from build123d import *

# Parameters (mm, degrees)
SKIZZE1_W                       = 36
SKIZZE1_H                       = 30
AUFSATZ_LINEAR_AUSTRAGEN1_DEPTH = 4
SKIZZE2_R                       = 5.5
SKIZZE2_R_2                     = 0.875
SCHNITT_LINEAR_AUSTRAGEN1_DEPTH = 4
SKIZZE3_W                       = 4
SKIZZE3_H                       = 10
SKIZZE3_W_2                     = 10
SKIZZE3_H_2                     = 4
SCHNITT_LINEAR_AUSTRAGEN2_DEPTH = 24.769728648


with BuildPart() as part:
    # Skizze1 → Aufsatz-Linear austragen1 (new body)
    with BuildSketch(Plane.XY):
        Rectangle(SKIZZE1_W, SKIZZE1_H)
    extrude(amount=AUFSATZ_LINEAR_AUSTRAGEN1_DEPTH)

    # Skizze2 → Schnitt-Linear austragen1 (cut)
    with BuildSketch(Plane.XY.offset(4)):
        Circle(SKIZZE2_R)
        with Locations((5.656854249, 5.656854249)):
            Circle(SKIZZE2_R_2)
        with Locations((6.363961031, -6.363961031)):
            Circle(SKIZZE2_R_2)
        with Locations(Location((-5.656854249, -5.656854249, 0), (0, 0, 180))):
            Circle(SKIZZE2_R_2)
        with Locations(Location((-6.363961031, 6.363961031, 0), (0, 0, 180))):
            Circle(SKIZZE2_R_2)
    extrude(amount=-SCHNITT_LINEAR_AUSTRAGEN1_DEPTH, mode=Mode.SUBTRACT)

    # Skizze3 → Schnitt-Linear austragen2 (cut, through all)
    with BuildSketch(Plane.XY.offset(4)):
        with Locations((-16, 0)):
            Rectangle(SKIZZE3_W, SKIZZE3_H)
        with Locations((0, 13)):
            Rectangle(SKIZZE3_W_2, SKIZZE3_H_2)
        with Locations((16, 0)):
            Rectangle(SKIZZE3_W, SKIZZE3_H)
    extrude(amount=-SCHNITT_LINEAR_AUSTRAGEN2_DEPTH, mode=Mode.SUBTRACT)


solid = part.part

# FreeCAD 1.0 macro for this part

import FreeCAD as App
import Part
import Sketcher
from FreeCAD import Vector

doc = App.newDocument("Part")
body = doc.addObject("PartDesign::Body", "Body")

sketch1 = doc.addObject("Sketcher::SketchObject", "Sketch")
body.addObject(sketch1)
sketch1.AttachmentSupport = (doc.XY_Plane, [""])
sketch1.MapMode = "FlatFace"
sketch1.addGeometry([
    Part.LineSegment(Vector(-18, 15, 0), Vector(-18, -15, 0)),
    Part.LineSegment(Vector(-18, -15, 0), Vector(18, -15, 0)),
    Part.LineSegment(Vector(18, -15, 0), Vector(18, 15, 0)),
    Part.LineSegment(Vector(18, 15, 0), Vector(-18, 15, 0)),
], False)
sketch1.addConstraint([
    Sketcher.Constraint("Coincident", 0, 2, 1, 1),
    Sketcher.Constraint("Coincident", 1, 2, 2, 1),
    Sketcher.Constraint("Coincident", 2, 2, 3, 1),
    Sketcher.Constraint("Coincident", 3, 2, 0, 1),
    Sketcher.Constraint("Vertical", 0),
    Sketcher.Constraint("Horizontal", 1),
    Sketcher.Constraint("Vertical", 2),
    Sketcher.Constraint("Horizontal", 3),
    Sketcher.Constraint("Symmetric", 0, 2, 2, 2, -1, 1),
    Sketcher.Constraint("DistanceX", 1, 1, 1, 2, 36.0),
    Sketcher.Constraint("DistanceY", 0, 2, 0, 1, 30.0),
])
pad1 = doc.addObject("PartDesign::Pad", "Pad")
body.addObject(pad1)
pad1.Profile = sketch1
pad1.Length = 4

sketch2 = doc.addObject("Sketcher::SketchObject", "Sketch001")
body.addObject(sketch2)
sketch2.AttachmentSupport = (doc.XY_Plane, [""])
sketch2.MapMode = "FlatFace"
sketch2.AttachmentOffset = App.Placement(Vector(0, 0, 4), App.Rotation())
sketch2.addGeometry([
    Part.Circle(Vector(0, 0, 0), Vector(0, 0, 1), 5.5),
    Part.Circle(Vector(5.7, 5.7, 0), Vector(0, 0, 1), 0.9),
    Part.Circle(Vector(6.4, -6.4, 0), Vector(0, 0, 1), 0.9),
    Part.Circle(Vector(-5.7, -5.7, 0), Vector(0, 0, 1), 0.9),
    Part.Circle(Vector(-6.4, 6.4, 0), Vector(0, 0, 1), 0.9),
], False)
sketch2.addConstraint([
    Sketcher.Constraint("Coincident", 0, 3, -1, 1),
    Sketcher.Constraint("Equal", 1, 2),
    Sketcher.Constraint("Equal", 2, 3),
    Sketcher.Constraint("Equal", 3, 4),
    Sketcher.Constraint("Symmetric", 1, 3, 3, 3, -1, 1),
    Sketcher.Constraint("Symmetric", 2, 3, 4, 3, -1, 1),
    Sketcher.Constraint("Diameter", 0, 11.0),
    Sketcher.Constraint("Diameter", 1, 1.75),
    Sketcher.Constraint("DistanceX", -1, 1, 2, 3, 6.363961),
    Sketcher.Constraint("DistanceY", 2, 3, -1, 1, 6.363961),
    Sketcher.Constraint("DistanceX", 3, 3, 1, 3, 11.313708),
    Sketcher.Constraint("DistanceY", 3, 3, 1, 3, 11.313708),
])
pocket1 = doc.addObject("PartDesign::Pocket", "Pocket")
body.addObject(pocket1)
pocket1.Profile = sketch2
pocket1.Length = 4

sketch3 = doc.addObject("Sketcher::SketchObject", "Sketch002")
body.addObject(sketch3)
sketch3.AttachmentSupport = (doc.XY_Plane, [""])
sketch3.MapMode = "FlatFace"
sketch3.AttachmentOffset = App.Placement(Vector(0, 0, 4), App.Rotation())
sketch3.addGeometry([
    Part.LineSegment(Vector(-18, 5, 0), Vector(-18, -5, 0)),
    Part.LineSegment(Vector(-18, -5, 0), Vector(-14, -5, 0)),
    Part.LineSegment(Vector(-14, -5, 0), Vector(-14, 5, 0)),
    Part.LineSegment(Vector(-14, 5, 0), Vector(-18, 5, 0)),
    Part.LineSegment(Vector(-5, 15, 0), Vector(-5, 11, 0)),
    Part.LineSegment(Vector(-5, 11, 0), Vector(5, 11, 0)),
    Part.LineSegment(Vector(5, 11, 0), Vector(5, 15, 0)),
    Part.LineSegment(Vector(5, 15, 0), Vector(-5, 15, 0)),
    Part.LineSegment(Vector(14, 5, 0), Vector(14, -5, 0)),
    Part.LineSegment(Vector(14, -5, 0), Vector(18, -5, 0)),
    Part.LineSegment(Vector(18, -5, 0), Vector(18, 5, 0)),
    Part.LineSegment(Vector(18, 5, 0), Vector(14, 5, 0)),
], False)
sketch3.addConstraint([
    Sketcher.Constraint("Coincident", 0, 2, 1, 1),
    Sketcher.Constraint("Coincident", 1, 2, 2, 1),
    Sketcher.Constraint("Coincident", 2, 2, 3, 1),
    Sketcher.Constraint("Coincident", 3, 2, 0, 1),
    Sketcher.Constraint("Coincident", 4, 2, 5, 1),
    Sketcher.Constraint("Coincident", 5, 2, 6, 1),
    Sketcher.Constraint("Coincident", 6, 2, 7, 1),
    Sketcher.Constraint("Coincident", 7, 2, 4, 1),
    Sketcher.Constraint("Coincident", 8, 2, 9, 1),
    Sketcher.Constraint("Coincident", 9, 2, 10, 1),
    Sketcher.Constraint("Coincident", 10, 2, 11, 1),
    Sketcher.Constraint("Coincident", 11, 2, 8, 1),
    Sketcher.Constraint("Vertical", 0),
    Sketcher.Constraint("Horizontal", 1),
    Sketcher.Constraint("Vertical", 2),
    Sketcher.Constraint("Horizontal", 3),
    Sketcher.Constraint("Vertical", 4),
    Sketcher.Constraint("Horizontal", 5),
    Sketcher.Constraint("Vertical", 6),
    Sketcher.Constraint("Horizontal", 7),
    Sketcher.Constraint("Vertical", 8),
    Sketcher.Constraint("Horizontal", 9),
    Sketcher.Constraint("Vertical", 10),
    Sketcher.Constraint("Horizontal", 11),
    Sketcher.Constraint("Symmetric", 2, 2, 8, 2, -1, 1),
    Sketcher.Constraint("Symmetric", 0, 2, 10, 2, -1, 1),
    Sketcher.Constraint("Horizontal", 1, 2, 8, 2),
    Sketcher.Constraint("Equal", 7, 0),
    Sketcher.Constraint("Equal", 11, 4),
    Sketcher.Constraint("DistanceX", 1, 1, 1, 2, 4.0),
    Sketcher.Constraint("DistanceX", 5, 1, 5, 2, 10.0),
    Sketcher.Constraint("DistanceX", 0, 2, -1, 1, 18.0),
    Sketcher.Constraint("DistanceX", 4, 2, -1, 1, 5.0),
    Sketcher.Constraint("DistanceY", -1, 1, 4, 2, 11.0),
])
pocket2 = doc.addObject("PartDesign::Pocket", "Pocket001")
body.addObject(pocket2)
pocket2.Profile = sketch3
pocket2.Type = "ThroughAll"

doc.recompute()
